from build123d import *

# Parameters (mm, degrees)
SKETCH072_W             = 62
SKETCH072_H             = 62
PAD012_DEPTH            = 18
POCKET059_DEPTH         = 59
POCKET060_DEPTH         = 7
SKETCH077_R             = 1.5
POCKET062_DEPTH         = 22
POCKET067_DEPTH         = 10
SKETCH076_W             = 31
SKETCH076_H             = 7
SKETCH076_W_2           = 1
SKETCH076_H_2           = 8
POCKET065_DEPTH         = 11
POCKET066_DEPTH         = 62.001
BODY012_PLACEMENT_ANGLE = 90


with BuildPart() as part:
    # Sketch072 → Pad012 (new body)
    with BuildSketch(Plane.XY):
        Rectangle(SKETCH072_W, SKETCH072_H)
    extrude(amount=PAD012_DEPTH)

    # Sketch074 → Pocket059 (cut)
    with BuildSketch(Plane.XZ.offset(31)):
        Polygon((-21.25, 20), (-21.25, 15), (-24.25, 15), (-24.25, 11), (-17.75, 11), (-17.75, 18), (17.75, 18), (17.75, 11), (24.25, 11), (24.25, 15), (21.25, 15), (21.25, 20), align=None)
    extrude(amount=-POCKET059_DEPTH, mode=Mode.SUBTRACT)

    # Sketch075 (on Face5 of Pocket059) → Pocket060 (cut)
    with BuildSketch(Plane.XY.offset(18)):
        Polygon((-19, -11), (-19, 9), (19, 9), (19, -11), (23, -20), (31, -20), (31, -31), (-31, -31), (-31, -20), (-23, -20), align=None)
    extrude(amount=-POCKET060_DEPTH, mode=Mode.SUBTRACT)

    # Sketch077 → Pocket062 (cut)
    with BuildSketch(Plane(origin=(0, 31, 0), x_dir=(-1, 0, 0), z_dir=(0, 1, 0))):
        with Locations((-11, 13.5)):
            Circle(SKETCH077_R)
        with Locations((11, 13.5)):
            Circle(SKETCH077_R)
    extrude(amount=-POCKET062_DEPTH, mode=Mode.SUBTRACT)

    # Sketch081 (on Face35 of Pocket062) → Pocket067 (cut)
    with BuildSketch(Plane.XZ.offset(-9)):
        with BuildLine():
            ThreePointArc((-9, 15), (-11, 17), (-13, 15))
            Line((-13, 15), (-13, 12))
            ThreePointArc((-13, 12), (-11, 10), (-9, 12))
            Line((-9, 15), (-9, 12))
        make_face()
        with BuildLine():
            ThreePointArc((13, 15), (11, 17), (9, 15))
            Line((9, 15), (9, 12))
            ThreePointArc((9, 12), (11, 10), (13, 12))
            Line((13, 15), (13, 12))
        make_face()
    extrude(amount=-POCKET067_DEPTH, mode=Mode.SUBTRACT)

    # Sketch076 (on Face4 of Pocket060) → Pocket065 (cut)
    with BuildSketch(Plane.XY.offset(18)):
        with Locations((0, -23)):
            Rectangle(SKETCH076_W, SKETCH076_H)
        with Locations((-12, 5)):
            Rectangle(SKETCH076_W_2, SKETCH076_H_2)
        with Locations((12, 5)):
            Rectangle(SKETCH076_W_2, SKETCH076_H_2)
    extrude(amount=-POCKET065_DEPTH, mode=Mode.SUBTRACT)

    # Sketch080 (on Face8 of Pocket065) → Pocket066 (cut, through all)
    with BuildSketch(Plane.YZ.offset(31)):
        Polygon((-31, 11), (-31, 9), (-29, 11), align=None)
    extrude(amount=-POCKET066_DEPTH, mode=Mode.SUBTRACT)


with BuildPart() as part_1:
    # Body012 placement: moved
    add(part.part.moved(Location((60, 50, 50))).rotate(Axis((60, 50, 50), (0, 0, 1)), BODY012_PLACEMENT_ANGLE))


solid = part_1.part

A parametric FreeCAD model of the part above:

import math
import FreeCAD as App
import Part
import Sketcher
from FreeCAD import Vector
Q = App.Units.Quantity

doc = App.newDocument("Part")
body = doc.addObject("PartDesign::Body", "Body")

# Sketch on XY plane
sketch1 = body.newObject("Sketcher::SketchObject", "Sketch")
sketch1.AttachmentSupport = (doc.getObject("XY_Plane"), [""])
sketch1.MapMode = "FlatFace"
sketch1.addGeometry([
    Part.LineSegment(Vector(-31, 31, 0), Vector(-31, -31, 0)),
    Part.LineSegment(Vector(-31, -31, 0), Vector(31, -31, 0)),
    Part.LineSegment(Vector(31, -31, 0), Vector(31, 31, 0)),
    Part.LineSegment(Vector(31, 31, 0), Vector(-31, 31, 0)),
], False)
sketch1.addConstraint([
    Sketcher.Constraint("Coincident", 0, 2, 1, 1),
    Sketcher.Constraint("Coincident", 1, 2, 2, 1),
    Sketcher.Constraint("Coincident", 2, 2, 3, 1),
    Sketcher.Constraint("Coincident", 3, 2, 0, 1),
    Sketcher.Constraint("Vertical", 0),
    Sketcher.Constraint("Horizontal", 1),
    Sketcher.Constraint("Vertical", 2),
    Sketcher.Constraint("Horizontal", 3),
    Sketcher.Constraint("Symmetric", 0, 2, 2, 2, -1, 1),
    Sketcher.Constraint("Equal", 3, 0),
    Sketcher.Constraint("DistanceX", 1, 1, 1, 2, Q("62 mm")),
])
pad1 = body.newObject("PartDesign::Pad", "Pad")
pad1.Profile = sketch1
pad1.Length = 18

# Sketch on XZ plane
sketch2 = body.newObject("Sketcher::SketchObject", "Sketch001")
sketch2.AttachmentSupport = (doc.getObject("XZ_Plane"), [""])
sketch2.MapMode = "FlatFace"
sketch2.AttachmentOffset = App.Placement(Vector(0, 0, 31), App.Rotation())
sketch2.addGeometry([
    Part.LineSegment(Vector(-21.2, 20, 0), Vector(-21.2, 15, 0)),  # 0
    Part.LineSegment(Vector(-21.2, 15, 0), Vector(-24.2, 15, 0)),  # 1
    Part.LineSegment(Vector(-24.2, 15, 0), Vector(-24.2, 11, 0)),  # 2
    Part.LineSegment(Vector(-24.2, 11, 0), Vector(-17.8, 11, 0)),  # 3
    Part.LineSegment(Vector(-17.8, 11, 0), Vector(-17.8, 18, 0)),  # 4
    Part.LineSegment(Vector(-17.8, 18, 0), Vector(17.8, 18, 0)),  # 5
    Part.LineSegment(Vector(17.8, 18, 0), Vector(17.8, 11, 0)),  # 6
    Part.LineSegment(Vector(17.8, 11, 0), Vector(24.2, 11, 0)),  # 7
    Part.LineSegment(Vector(24.2, 11, 0), Vector(24.2, 15, 0)),  # 8
    Part.LineSegment(Vector(24.2, 15, 0), Vector(21.2, 15, 0)),  # 9
    Part.LineSegment(Vector(21.2, 15, 0), Vector(21.2, 20, 0)),  # 10
    Part.LineSegment(Vector(21.2, 20, 0), Vector(-21.2, 20, 0)),  # 11
], False)
sketch2.addConstraint([
    Sketcher.Constraint("Coincident", 0, 2, 1, 1),
    Sketcher.Constraint("Coincident", 1, 2, 2, 1),
    Sketcher.Constraint("Coincident", 2, 2, 3, 1),
    Sketcher.Constraint("Coincident", 3, 2, 4, 1),
    Sketcher.Constraint("Coincident", 4, 2, 5, 1),
    Sketcher.Constraint("Coincident", 5, 2, 6, 1),
    Sketcher.Constraint("Coincident", 6, 2, 7, 1),
    Sketcher.Constraint("Coincident", 7, 2, 8, 1),
    Sketcher.Constraint("Coincident", 8, 2, 9, 1),
    Sketcher.Constraint("Coincident", 9, 2, 10, 1),
    Sketcher.Constraint("Coincident", 10, 2, 11, 1),
    Sketcher.Constraint("Coincident", 11, 2, 0, 1),
    Sketcher.Constraint("Vertical", 0),
    Sketcher.Constraint("Horizontal", 1),
    Sketcher.Constraint("Vertical", 2),
    Sketcher.Constraint("Horizontal", 3),
    Sketcher.Constraint("Vertical", 4),
    Sketcher.Constraint("Horizontal", 5),
    Sketcher.Constraint("Vertical", 6),
    Sketcher.Constraint("Horizontal", 7),
    Sketcher.Constraint("Vertical", 8),
    Sketcher.Constraint("Horizontal", 9),
    Sketcher.Constraint("Vertical", 10),
    Sketcher.Constraint("Horizontal", 11),
    Sketcher.Constraint("Symmetric", 3, 2, 6, 2, -2),
    Sketcher.Constraint("Symmetric", 1, 2, 8, 2, -2),
    Sketcher.Constraint("Equal", 1, 9),
    Sketcher.Constraint("DistanceX", 1, 2, 1, 1, Q("3 mm")),
    Sketcher.Constraint("DistanceY", 0, 2, 0, 1, Q("5 mm")),
    Sketcher.Constraint("DistanceY", 2, 2, 2, 1, Q("4 mm")),
    Sketcher.Constraint("DistanceY", 4, 1, 4, 2, Q("7 mm")),
    Sketcher.Constraint("DistanceX", 3, 1, 3, 2, Q("6.5 mm")),
    Sketcher.Constraint("DistanceX", 5, 1, 5, 2, Q("35.5 mm")),
    Sketcher.Constraint("DistanceY", -1, 1, 0, 2, Q("15 mm")),
])
pocket1 = body.newObject("PartDesign::Pocket", "Pocket")
pocket1.Profile = sketch2
pocket1.Length = 59

# Sketch on XY plane
sketch3 = body.newObject("Sketcher::SketchObject", "Sketch002")
sketch3.AttachmentSupport = (doc.getObject("XY_Plane"), [""])
sketch3.MapMode = "FlatFace"
sketch3.AttachmentOffset = App.Placement(Vector(0, 0, 18), App.Rotation())
sketch3.addGeometry([
    Part.LineSegment(Vector(-19, 9, 0), Vector(-19, -11, 0)),  # 0
    Part.LineSegment(Vector(-19, -11, 0), Vector(-23, -20, 0)),  # 1
    Part.LineSegment(Vector(-23, -20, 0), Vector(-31, -20, 0)),  # 2
    Part.LineSegment(Vector(-31, -20, 0), Vector(-31, -31, 0)),  # 3
    Part.LineSegment(Vector(-31, -31, 0), Vector(31, -31, 0)),  # 4
    Part.LineSegment(Vector(31, -31, 0), Vector(31, -20, 0)),  # 5
    Part.LineSegment(Vector(31, -20, 0), Vector(23, -20, 0)),  # 6
    Part.LineSegment(Vector(23, -20, 0), Vector(19, -11, 0)),  # 7
    Part.LineSegment(Vector(19, -11, 0), Vector(19, 9, 0)),  # 8
    Part.LineSegment(Vector(19, 9, 0), Vector(-19, 9, 0)),  # 9
], False)
sketch3.addConstraint([
    Sketcher.Constraint("Coincident", 0, 2, 1, 1),
    Sketcher.Constraint("Coincident", 1, 2, 2, 1),
    Sketcher.Constraint("Coincident", 2, 2, 3, 1),
    Sketcher.Constraint("Coincident", 3, 2, 4, 1),
    Sketcher.Constraint("Coincident", 4, 2, 5, 1),
    Sketcher.Constraint("Coincident", 5, 2, 6, 1),
    Sketcher.Constraint("Coincident", 6, 2, 7, 1),
    Sketcher.Constraint("Coincident", 7, 2, 8, 1),
    Sketcher.Constraint("Coincident", 8, 2, 9, 1),
    Sketcher.Constraint("Coincident", 9, 2, 0, 1),
    Sketcher.Constraint("Vertical", 0),
    Sketcher.Constraint("Horizontal", 2),
    Sketcher.Constraint("Vertical", 3),
    Sketcher.Constraint("Horizontal", 4),
    Sketcher.Constraint("Vertical", 5),
    Sketcher.Constraint("Horizontal", 6),
    Sketcher.Constraint("Vertical", 8),
    Sketcher.Constraint("Horizontal", 9),
    Sketcher.Constraint("Symmetric", 2, 2, 5, 2, -2),
    Sketcher.Constraint("Symmetric", 0, 2, 7, 2, -2),
    Sketcher.Constraint("Equal", 2, 6),
    Sketcher.Constraint("DistanceX", 2, 2, 2, 1, Q("8 mm")),
    Sketcher.Constraint("DistanceX", 4, 1, 4, 2, Q("62 mm")),
    Sketcher.Constraint("DistanceX", 9, 2, 9, 1, Q("38 mm")),
    Sketcher.Constraint("DistanceY", 0, 2, 0, 1, Q("20 mm")),
    Sketcher.Constraint("DistanceY", 3, 2, 3, 1, Q("11 mm")),
    Sketcher.Constraint("DistanceY", 0, 2, -1, 1, Q("11 mm")),
    Sketcher.Constraint("DistanceY", 1, 2, -1, 1, Q("20 mm")),
])
pocket2 = body.newObject("PartDesign::Pocket", "Pocket001")
pocket2.Profile = sketch3
pocket2.Length = 7

# Sketch on XZ plane
sketch4 = body.newObject("Sketcher::SketchObject", "Sketch003")
sketch4.AttachmentSupport = (doc.getObject("XZ_Plane"), [""])
sketch4.MapMode = "FlatFace"
sketch4.AttachmentOffset = App.Placement(Vector(0, 0, -31), App.Rotation())
sketch4.addGeometry([
    Part.Circle(Vector(11, 13.5, 0), Vector(0, 0, 1), 1.5),
    Part.Circle(Vector(-11, 13.5, 0), Vector(0, 0, 1), 1.5),
], False)
sketch4.addConstraint([
    Sketcher.Constraint("Equal", 0, 1),
    Sketcher.Constraint("Symmetric", 0, 3, 1, 3, -2),
    Sketcher.Constraint("Diameter", 0, Q("3 mm")),
    Sketcher.Constraint("DistanceX", -1, 1, 0, 3, Q("11 mm")),
    Sketcher.Constraint("DistanceY", -1, 1, 0, 3, Q("13.5 mm")),
])
pocket3 = body.newObject("PartDesign::Pocket", "Pocket002")
pocket3.Profile = sketch4
pocket3.Length = 22
pocket3.Reversed = True

# Sketch on XZ plane
sketch5 = body.newObject("Sketcher::SketchObject", "Sketch004")
sketch5.AttachmentSupport = (doc.getObject("XZ_Plane"), [""])
sketch5.MapMode = "FlatFace"
sketch5.AttachmentOffset = App.Placement(Vector(0, 0, -9), App.Rotation())
sketch5.addGeometry([
    Part.ArcOfCircle(Part.Circle(Vector(-11, 15, 0), Vector(0, 0, 1), 2), math.radians(0), math.radians(180)),  # 0
    Part.LineSegment(Vector(-13, 15, 0), Vector(-13, 12, 0)),  # 1
    Part.ArcOfCircle(Part.Circle(Vector(-11, 12, 0), Vector(0, 0, 1), 2), math.radians(180), math.radians(360)),  # 2
    Part.LineSegment(Vector(-9, 12, 0), Vector(-9, 15, 0)),  # 3
    Part.ArcOfCircle(Part.Circle(Vector(11, 15, 0), Vector(0, 0, 1), 2), math.radians(0), math.radians(180)),  # 4
    Part.LineSegment(Vector(9, 15, 0), Vector(9, 12, 0)),  # 5
    Part.ArcOfCircle(Part.Circle(Vector(11, 12, 0), Vector(0, 0, 1), 2), math.radians(180), math.radians(360)),  # 6
    Part.LineSegment(Vector(13, 12, 0), Vector(13, 15, 0)),  # 7
], False)
sketch5.addConstraint([
    Sketcher.Constraint("Tangent", 0, 2, 1, 1),
    Sketcher.Constraint("Tangent", 1, 2, 2, 1),
    Sketcher.Constraint("Tangent", 2, 2, 3, 1),
    Sketcher.Constraint("Tangent", 3, 2, 0, 1),
    Sketcher.Constraint("Tangent", 4, 2, 5, 1),
    Sketcher.Constraint("Tangent", 5, 2, 6, 1),
    Sketcher.Constraint("Tangent", 6, 2, 7, 1),
    Sketcher.Constraint("Tangent", 7, 2, 4, 1),
    Sketcher.Constraint("Vertical", 1),
    Sketcher.Constraint("Vertical", 3),
    Sketcher.Constraint("Vertical", 5),
    Sketcher.Constraint("Vertical", 7),
    Sketcher.Constraint("Equal", 2, 4),
    Sketcher.Constraint("Symmetric", 0, 3, 4, 3, -2),
    Sketcher.Constraint("Horizontal", 2, 3, 6, 3),
    Sketcher.Constraint("Radius", 0, Q("2 mm")),
    Sketcher.Constraint("DistanceY", 1, 2, 1, 1, Q("3 mm")),
    Sketcher.Constraint("DistanceX", 0, 3, -1, 1, Q("11 mm")),
    Sketcher.Constraint("DistanceY", -1, 1, 0, 3, Q("15 mm")),
])
pocket4 = body.newObject("PartDesign::Pocket", "Pocket003")
pocket4.Profile = sketch5
pocket4.Length = 10

# Sketch on XY plane
sketch6 = body.newObject("Sketcher::SketchObject", "Sketch005")
sketch6.AttachmentSupport = (doc.getObject("XY_Plane"), [""])
sketch6.MapMode = "FlatFace"
sketch6.AttachmentOffset = App.Placement(Vector(0, 0, 18), App.Rotation())
sketch6.addGeometry([
    Part.LineSegment(Vector(-15.5, -19.5, 0), Vector(-15.5, -26.5, 0)),  # 0
    Part.LineSegment(Vector(-15.5, -26.5, 0), Vector(15.5, -26.5, 0)),  # 1
    Part.LineSegment(Vector(15.5, -26.5, 0), Vector(15.5, -19.5, 0)),  # 2
    Part.LineSegment(Vector(15.5, -19.5, 0), Vector(-15.5, -19.5, 0)),  # 3
    Part.LineSegment(Vector(-12.5, 9, 0), Vector(-12.5, 1, 0)),  # 4
    Part.LineSegment(Vector(-12.5, 1, 0), Vector(-11.5, 1, 0)),  # 5
    Part.LineSegment(Vector(-11.5, 1, 0), Vector(-11.5, 9, 0)),  # 6
    Part.LineSegment(Vector(-11.5, 9, 0), Vector(-12.5, 9, 0)),  # 7
    Part.LineSegment(Vector(11.5, 9, 0), Vector(11.5, 1, 0)),  # 8
    Part.LineSegment(Vector(11.5, 1, 0), Vector(12.5, 1, 0)),  # 9
    Part.LineSegment(Vector(12.5, 1, 0), Vector(12.5, 9, 0)),  # 10
    Part.LineSegment(Vector(12.5, 9, 0), Vector(11.5, 9, 0)),  # 11
], False)
sketch6.addConstraint([
    Sketcher.Constraint("Coincident", 0, 2, 1, 1),
    Sketcher.Constraint("Coincident", 1, 2, 2, 1),
    Sketcher.Constraint("Coincident", 2, 2, 3, 1),
    Sketcher.Constraint("Coincident", 3, 2, 0, 1),
    Sketcher.Constraint("Coincident", 4, 2, 5, 1),
    Sketcher.Constraint("Coincident", 5, 2, 6, 1),
    Sketcher.Constraint("Coincident", 6, 2, 7, 1),
    Sketcher.Constraint("Coincident", 7, 2, 4, 1),
    Sketcher.Constraint("Coincident", 8, 2, 9, 1),
    Sketcher.Constraint("Coincident", 9, 2, 10, 1),
    Sketcher.Constraint("Coincident", 10, 2, 11, 1),
    Sketcher.Constraint("Coincident", 11, 2, 8, 1),
    Sketcher.Constraint("Vertical", 0),
    Sketcher.Constraint("Horizontal", 1),
    Sketcher.Constraint("Vertical", 2),
    Sketcher.Constraint("Horizontal", 3),
    Sketcher.Constraint("Vertical", 4),
    Sketcher.Constraint("Horizontal", 5),
    Sketcher.Constraint("Vertical", 6),
    Sketcher.Constraint("Horizontal", 7),
    Sketcher.Constraint("Vertical", 8),
    Sketcher.Constraint("Horizontal", 9),
    Sketcher.Constraint("Vertical", 10),
    Sketcher.Constraint("Horizontal", 11),
    Sketcher.Constraint("Symmetric", 5, 2, 8, 2, -2),
    Sketcher.Constraint("Symmetric", 7, 2, 10, 2, -2),
    Sketcher.Constraint("DistanceX", 1, 1, 1, 2, Q("31 mm")),
    Sketcher.Constraint("DistanceX", 5, 1, 5, 2, Q("1 mm")),
    Sketcher.Constraint("DistanceY", 0, 2, 0, 1, Q("7 mm")),
    Sketcher.Constraint("DistanceY", 4, 2, 4, 1, Q("8 mm")),
    Sketcher.Constraint("DistanceY", -1, 1, 4, 2, Q("1 mm")),
    Sketcher.Constraint("DistanceX", 3, 2, 4, 2, Q("3 mm")),
    Sketcher.Constraint("DistanceX", 8, 2, 2, 2, Q("4 mm")),
    Sketcher.Constraint("DistanceY", 0, 2, -1, 1, Q("26.5 mm")),
])
pocket5 = body.newObject("PartDesign::Pocket", "Pocket004")
pocket5.Profile = sketch6
pocket5.Length = 11

# Sketch on YZ plane
sketch7 = body.newObject("Sketcher::SketchObject", "Sketch006")
sketch7.AttachmentSupport = (doc.getObject("YZ_Plane"), [""])
sketch7.MapMode = "FlatFace"
sketch7.AttachmentOffset = App.Placement(Vector(0, 0, 31), App.Rotation())
sketch7.addGeometry([
    Part.LineSegment(Vector(-31, 11, 0), Vector(-31, 9, 0)),
    Part.LineSegment(Vector(-31, 9, 0), Vector(-29, 11, 0)),
    Part.LineSegment(Vector(-29, 11, 0), Vector(-31, 11, 0)),
], False)
sketch7.addConstraint([
    Sketcher.Constraint("Coincident", 0, 2, 1, 1),
    Sketcher.Constraint("Coincident", 1, 2, 2, 1),
    Sketcher.Constraint("Coincident", 2, 2, 0, 1),
    Sketcher.Constraint("Vertical", 0),
    Sketcher.Constraint("Horizontal", 2),
    Sketcher.Constraint("Equal", 2, 0),
    Sketcher.Constraint("DistanceX", 2, 2, 2, 1, Q("2 mm")),
    Sketcher.Constraint("DistanceX", 0, 2, -1, 1, Q("31 mm")),
    Sketcher.Constraint("DistanceY", -1, 1, 0, 2, Q("9 mm")),
])
pocket6 = body.newObject("PartDesign::Pocket", "Pocket005")
pocket6.Profile = sketch7
pocket6.Type = "ThroughAll"
body2 = doc.addObject("PartDesign::Body", "Body001")
doc.recompute()

body.Placement = App.Placement(Vector(60, 50, 50), App.Rotation(Vector(0, 0, 1), 90))
boolean = body2.newObject("PartDesign::Boolean", "Boolean")
boolean.Type = "Fuse"
boolean.addObjects([body])

doc.recompute()
